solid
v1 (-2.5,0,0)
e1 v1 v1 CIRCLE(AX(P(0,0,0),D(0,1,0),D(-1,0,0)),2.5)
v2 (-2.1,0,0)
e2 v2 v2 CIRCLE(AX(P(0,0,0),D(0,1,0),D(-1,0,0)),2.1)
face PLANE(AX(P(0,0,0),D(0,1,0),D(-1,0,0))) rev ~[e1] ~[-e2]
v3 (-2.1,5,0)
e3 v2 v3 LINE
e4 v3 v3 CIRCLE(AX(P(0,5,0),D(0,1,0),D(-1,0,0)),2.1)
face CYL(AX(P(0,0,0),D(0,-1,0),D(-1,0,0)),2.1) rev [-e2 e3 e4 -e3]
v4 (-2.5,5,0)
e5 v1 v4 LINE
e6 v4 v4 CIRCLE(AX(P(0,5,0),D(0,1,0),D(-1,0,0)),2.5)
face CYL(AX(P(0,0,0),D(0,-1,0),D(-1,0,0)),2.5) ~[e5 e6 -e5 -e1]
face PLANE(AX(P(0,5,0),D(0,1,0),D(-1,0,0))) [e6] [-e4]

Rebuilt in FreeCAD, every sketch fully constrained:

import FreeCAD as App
import Part
import Sketcher

doc = App.newDocument("Part")
params = doc.addObject("Spreadsheet::Sheet", "Params")
for row, (alias, value) in enumerate([
    ("sketch1_diameter", "5 mm"),
    ("sketch1_diameter2", "4.2 mm"),
    ("pad1_length", "5 mm"),
], start=1):
    params.set(f"A{row}", alias)
    params.set(f"B{row}", "=" + value)
    params.setAlias(f"B{row}", alias)

body = doc.addObject("PartDesign::Body", "Body")

# Sketch on XZ plane
sketch1 = body.newObject("Sketcher::SketchObject", "Sketch")
sketch1.AttachmentSupport = (doc.getObject("XZ_Plane"), [""])
sketch1.MapMode = "FlatFace"
sketch1.addGeometry([
    Part.Circle(App.Vector(0, 0, 0), App.Vector(0, 0, 1), 2.5),
    Part.Circle(App.Vector(0, 0, 0), App.Vector(0, 0, 1), 2.1),
], False)
sketch1.addConstraint([
    Sketcher.Constraint("Coincident", 0, 3, -1, 1),
    Sketcher.Constraint("Coincident", 1, 3, -1, 1),
    Sketcher.Constraint("Diameter", 0, 5.0),
    Sketcher.Constraint("Diameter", 1, 4.2),
])
sketch1.setExpression("Constraints[2]", "Params.sketch1_diameter")
sketch1.setExpression("Constraints[3]", "Params.sketch1_diameter2")
pad1 = body.newObject("PartDesign::Pad", "Pad")
pad1.Profile = sketch1
pad1.setExpression("Length", "Params.pad1_length")
pad1.Reversed = True

doc.recompute()
